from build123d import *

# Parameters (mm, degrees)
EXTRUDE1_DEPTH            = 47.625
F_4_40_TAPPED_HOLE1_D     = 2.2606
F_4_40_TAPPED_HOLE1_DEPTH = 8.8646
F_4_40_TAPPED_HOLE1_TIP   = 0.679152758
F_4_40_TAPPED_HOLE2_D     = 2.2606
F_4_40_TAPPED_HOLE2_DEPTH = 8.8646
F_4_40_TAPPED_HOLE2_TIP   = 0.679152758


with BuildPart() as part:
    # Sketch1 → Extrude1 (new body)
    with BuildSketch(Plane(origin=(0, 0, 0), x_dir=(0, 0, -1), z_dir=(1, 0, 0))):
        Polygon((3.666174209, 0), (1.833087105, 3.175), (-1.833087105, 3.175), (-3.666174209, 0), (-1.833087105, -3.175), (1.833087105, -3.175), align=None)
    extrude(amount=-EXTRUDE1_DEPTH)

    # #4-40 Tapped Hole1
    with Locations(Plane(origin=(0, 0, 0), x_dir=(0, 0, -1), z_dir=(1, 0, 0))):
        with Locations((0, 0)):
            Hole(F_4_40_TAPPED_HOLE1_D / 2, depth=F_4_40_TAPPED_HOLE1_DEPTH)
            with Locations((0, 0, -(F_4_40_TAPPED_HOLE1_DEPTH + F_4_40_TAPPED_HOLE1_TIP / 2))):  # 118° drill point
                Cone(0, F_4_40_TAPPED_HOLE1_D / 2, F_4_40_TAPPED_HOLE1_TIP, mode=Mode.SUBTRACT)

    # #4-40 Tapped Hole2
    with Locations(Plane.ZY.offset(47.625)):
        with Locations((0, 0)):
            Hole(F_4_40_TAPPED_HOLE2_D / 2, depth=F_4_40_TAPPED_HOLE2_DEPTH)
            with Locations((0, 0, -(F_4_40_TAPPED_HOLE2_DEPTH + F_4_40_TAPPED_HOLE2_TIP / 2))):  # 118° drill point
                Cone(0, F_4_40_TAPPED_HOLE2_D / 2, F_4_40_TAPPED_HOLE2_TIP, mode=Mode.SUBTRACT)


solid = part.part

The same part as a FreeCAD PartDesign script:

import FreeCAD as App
import Part
import Sketcher
from FreeCAD import Vector
Q = App.Units.Quantity

doc = App.newDocument("Part")
body = doc.addObject("PartDesign::Body", "Body")

# Sketch on YZ plane
sketch1 = body.newObject("Sketcher::SketchObject", "Sketch")
sketch1.AttachmentSupport = (doc.getObject("YZ_Plane"), [""])
sketch1.MapMode = "FlatFace"
sketch1.addGeometry([
    Part.LineSegment(Vector(0, -3.7, 0), Vector(3.2, -1.8, 0)),  # 0
    Part.LineSegment(Vector(3.2, -1.8, 0), Vector(3.2, 1.8, 0)),  # 1
    Part.LineSegment(Vector(3.2, 1.8, 0), Vector(0, 3.7, 0)),  # 2
    Part.LineSegment(Vector(0, 3.7, 0), Vector(-3.2, 1.8, 0)),  # 3
    Part.LineSegment(Vector(-3.2, 1.8, 0), Vector(-3.2, -1.8, 0)),  # 4
    Part.LineSegment(Vector(-3.2, -1.8, 0), Vector(0, -3.7, 0)),  # 5
], False)
sketch1.addConstraint([
    Sketcher.Constraint("Coincident", 0, 2, 1, 1),
    Sketcher.Constraint("Coincident", 1, 2, 2, 1),
    Sketcher.Constraint("Coincident", 2, 2, 3, 1),
    Sketcher.Constraint("Coincident", 3, 2, 4, 1),
    Sketcher.Constraint("Coincident", 4, 2, 5, 1),
    Sketcher.Constraint("Coincident", 5, 2, 0, 1),
    Sketcher.Constraint("Vertical", 1),
    Sketcher.Constraint("Vertical", 4),
    Sketcher.Constraint("Symmetric", 0, 2, 3, 2, -1, 1),
    Sketcher.Constraint("Symmetric", 2, 2, 5, 2, -1, 1),
    Sketcher.Constraint("PointOnObject", 2, 2, -2),
    Sketcher.Constraint("Parallel", 2, 5),
    Sketcher.Constraint("Horizontal", 1, 2, 3, 2),
    Sketcher.Constraint("Angle", 0, Q("30 deg")),
    Sketcher.Constraint("DistanceX", 3, 2, 1, 2, Q("0.25 in")),
    Sketcher.Constraint("DistanceY", 1, 1, 1, 2, 3.666174),
])
pad1 = body.newObject("PartDesign::Pad", "Pad")
pad1.Profile = sketch1
pad1.Length = Q("1.875 in")
pad1.Reversed = True

# Sketch on YZ plane
sketch2 = body.newObject("Sketcher::SketchObject", "Sketch001")
sketch2.AttachmentSupport = (doc.getObject("YZ_Plane"), [""])
sketch2.MapMode = "FlatFace"
sketch2.addGeometry(Part.Circle(Vector(0, 0, 0), Vector(0, 0, 1), 1.1), False)
sketch2.addConstraint([
    Sketcher.Constraint("Coincident", 0, 3, -1, 1),
    Sketcher.Constraint("Diameter", 0, Q("0.089 in")),
])
doc.recompute()
hole = body.newObject("PartDesign::Hole", "Hole")
hole.Profile = sketch2
hole.ThreadType = "None"
hole.Diameter = Q("0.089 in")
hole.DepthType = "Dimension"
hole.Depth = Q("0.349 in")
hole.DrillPoint = "Angled"
hole.DrillPointAngle = 118

# Sketch on YZ plane
sketch3 = body.newObject("Sketcher::SketchObject", "Sketch002")
sketch3.AttachmentSupport = (doc.getObject("YZ_Plane"), [""])
sketch3.MapMode = "FlatFace"
sketch3.AttachmentOffset = App.Placement(Vector(0, 0, -1.875 * 25.4), App.Rotation())
sketch3.addGeometry(Part.Circle(Vector(0, 0, 0), Vector(0, 0, 1), 1.1), False)
sketch3.addConstraint([
    Sketcher.Constraint("Coincident", 0, 3, -1, 1),
    Sketcher.Constraint("Diameter", 0, Q("0.089 in")),
])
doc.recompute()
hole2 = body.newObject("PartDesign::Hole", "Hole001")
hole2.Profile = sketch3
hole2.ThreadType = "None"
hole2.Diameter = Q("0.089 in")
hole2.DepthType = "Dimension"
hole2.Depth = Q("0.349 in")
hole2.DrillPoint = "Angled"
hole2.DrillPointAngle = 118
hole2.Reversed = True

doc.recompute()
